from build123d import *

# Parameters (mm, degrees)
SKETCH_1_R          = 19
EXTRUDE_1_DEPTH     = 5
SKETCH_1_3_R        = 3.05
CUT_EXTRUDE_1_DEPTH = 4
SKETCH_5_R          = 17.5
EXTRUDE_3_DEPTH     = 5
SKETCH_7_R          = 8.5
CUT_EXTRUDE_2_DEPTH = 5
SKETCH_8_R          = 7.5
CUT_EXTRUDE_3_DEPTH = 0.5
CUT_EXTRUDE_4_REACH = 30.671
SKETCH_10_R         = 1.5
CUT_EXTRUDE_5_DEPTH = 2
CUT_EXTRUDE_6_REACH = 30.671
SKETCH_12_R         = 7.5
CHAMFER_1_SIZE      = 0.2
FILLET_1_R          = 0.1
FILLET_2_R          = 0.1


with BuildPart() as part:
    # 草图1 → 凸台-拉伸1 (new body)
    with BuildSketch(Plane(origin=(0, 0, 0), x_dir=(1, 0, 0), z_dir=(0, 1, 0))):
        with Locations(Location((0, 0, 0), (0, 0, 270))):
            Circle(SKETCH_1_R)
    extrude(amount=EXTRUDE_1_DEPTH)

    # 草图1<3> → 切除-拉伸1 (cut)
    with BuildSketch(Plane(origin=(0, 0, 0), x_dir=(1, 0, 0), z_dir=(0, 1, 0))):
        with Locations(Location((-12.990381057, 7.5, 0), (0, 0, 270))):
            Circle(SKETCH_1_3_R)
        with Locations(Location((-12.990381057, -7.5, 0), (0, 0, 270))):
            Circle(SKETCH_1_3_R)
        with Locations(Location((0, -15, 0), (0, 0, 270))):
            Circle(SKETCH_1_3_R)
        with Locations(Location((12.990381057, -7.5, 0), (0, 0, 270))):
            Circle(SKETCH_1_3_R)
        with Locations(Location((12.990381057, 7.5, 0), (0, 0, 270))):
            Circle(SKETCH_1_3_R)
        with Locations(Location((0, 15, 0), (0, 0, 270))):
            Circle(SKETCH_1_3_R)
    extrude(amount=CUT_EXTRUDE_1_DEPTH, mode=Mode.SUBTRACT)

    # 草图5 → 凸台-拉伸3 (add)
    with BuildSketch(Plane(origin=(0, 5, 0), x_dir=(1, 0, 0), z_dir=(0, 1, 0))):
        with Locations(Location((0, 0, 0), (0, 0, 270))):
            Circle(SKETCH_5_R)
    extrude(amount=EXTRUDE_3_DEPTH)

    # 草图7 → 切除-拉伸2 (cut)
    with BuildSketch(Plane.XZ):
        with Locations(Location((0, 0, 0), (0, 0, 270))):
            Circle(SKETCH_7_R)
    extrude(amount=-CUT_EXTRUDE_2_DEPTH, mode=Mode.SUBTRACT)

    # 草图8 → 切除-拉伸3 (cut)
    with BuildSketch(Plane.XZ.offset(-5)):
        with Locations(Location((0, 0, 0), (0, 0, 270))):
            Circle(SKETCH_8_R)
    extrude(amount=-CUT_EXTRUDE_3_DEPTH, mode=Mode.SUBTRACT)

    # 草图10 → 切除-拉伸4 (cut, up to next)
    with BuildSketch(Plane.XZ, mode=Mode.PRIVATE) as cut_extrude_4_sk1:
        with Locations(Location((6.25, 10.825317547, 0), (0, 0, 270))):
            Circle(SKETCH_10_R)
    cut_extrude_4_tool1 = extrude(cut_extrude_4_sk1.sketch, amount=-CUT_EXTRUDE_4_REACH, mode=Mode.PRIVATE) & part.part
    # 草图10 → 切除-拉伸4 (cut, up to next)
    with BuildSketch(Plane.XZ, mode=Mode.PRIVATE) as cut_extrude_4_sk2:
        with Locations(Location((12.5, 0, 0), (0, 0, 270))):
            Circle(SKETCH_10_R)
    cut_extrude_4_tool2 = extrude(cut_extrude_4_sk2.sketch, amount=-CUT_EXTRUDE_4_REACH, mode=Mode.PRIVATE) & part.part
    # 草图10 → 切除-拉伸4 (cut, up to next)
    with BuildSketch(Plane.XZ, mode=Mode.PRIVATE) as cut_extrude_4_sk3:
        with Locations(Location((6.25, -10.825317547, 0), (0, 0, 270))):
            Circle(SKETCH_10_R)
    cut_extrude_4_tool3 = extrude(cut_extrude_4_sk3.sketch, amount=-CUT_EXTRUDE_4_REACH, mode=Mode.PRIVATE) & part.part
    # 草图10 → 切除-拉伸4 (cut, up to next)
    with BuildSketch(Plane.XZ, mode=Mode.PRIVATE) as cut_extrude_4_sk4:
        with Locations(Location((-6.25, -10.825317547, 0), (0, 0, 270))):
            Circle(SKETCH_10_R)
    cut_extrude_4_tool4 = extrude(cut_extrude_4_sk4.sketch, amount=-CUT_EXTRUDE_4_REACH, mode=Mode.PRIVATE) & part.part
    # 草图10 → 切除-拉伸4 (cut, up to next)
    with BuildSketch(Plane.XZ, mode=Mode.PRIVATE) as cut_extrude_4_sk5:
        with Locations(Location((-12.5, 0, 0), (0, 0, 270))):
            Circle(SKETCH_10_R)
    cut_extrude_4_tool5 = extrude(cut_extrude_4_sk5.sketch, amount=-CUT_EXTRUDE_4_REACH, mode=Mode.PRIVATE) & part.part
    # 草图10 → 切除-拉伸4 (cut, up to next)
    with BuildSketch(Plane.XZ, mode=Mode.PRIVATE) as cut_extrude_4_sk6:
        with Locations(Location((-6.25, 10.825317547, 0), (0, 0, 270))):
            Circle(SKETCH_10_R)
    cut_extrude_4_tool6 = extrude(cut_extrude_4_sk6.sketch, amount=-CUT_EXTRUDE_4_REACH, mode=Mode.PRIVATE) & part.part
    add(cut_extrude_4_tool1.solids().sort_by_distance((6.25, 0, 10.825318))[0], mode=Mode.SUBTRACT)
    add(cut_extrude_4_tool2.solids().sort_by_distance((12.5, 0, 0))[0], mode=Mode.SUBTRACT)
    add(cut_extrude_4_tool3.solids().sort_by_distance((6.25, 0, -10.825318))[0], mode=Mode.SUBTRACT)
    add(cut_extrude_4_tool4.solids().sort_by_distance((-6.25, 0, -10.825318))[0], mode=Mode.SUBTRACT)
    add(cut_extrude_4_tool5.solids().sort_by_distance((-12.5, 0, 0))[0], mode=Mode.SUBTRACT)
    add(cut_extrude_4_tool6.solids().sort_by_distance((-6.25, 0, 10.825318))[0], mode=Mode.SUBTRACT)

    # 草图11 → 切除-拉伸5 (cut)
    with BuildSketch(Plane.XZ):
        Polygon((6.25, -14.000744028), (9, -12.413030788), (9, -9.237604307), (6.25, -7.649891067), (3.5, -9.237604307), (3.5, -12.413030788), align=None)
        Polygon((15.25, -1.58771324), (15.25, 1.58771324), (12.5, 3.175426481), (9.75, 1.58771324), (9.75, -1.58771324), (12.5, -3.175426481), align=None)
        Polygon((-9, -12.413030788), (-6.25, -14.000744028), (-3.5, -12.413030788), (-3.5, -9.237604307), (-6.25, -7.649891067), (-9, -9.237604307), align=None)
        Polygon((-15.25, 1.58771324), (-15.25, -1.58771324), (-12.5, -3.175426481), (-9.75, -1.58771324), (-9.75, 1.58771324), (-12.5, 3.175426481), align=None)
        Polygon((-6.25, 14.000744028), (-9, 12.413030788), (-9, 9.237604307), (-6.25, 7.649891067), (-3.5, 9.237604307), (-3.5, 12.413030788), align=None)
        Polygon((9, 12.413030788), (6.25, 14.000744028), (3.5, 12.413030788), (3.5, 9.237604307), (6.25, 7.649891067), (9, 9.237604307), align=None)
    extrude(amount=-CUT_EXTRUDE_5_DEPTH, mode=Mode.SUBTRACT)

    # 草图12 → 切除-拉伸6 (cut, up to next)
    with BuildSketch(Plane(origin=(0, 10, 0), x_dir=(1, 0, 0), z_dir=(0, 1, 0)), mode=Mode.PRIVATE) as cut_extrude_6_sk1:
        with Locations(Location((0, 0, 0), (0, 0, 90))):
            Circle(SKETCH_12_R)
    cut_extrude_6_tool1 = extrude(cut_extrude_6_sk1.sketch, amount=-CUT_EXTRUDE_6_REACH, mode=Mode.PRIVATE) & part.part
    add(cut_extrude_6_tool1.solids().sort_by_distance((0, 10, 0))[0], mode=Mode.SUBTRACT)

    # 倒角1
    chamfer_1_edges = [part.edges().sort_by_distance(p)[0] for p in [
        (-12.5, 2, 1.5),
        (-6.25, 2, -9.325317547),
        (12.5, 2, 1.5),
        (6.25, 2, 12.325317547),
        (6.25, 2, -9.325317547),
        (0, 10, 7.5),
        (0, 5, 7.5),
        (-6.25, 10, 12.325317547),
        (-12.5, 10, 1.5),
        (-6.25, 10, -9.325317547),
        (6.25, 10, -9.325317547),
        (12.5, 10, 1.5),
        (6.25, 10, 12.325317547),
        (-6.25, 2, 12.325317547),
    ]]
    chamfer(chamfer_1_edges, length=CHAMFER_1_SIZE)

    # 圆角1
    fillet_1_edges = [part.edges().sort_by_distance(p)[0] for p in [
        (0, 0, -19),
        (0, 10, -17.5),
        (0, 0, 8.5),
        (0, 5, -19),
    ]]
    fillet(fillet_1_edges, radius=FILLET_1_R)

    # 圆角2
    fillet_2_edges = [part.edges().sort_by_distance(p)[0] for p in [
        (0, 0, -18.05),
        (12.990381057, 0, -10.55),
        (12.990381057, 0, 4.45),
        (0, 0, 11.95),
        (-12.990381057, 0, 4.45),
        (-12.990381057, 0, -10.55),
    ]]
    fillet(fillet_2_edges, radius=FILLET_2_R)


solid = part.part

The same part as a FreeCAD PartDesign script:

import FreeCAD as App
import Part
import Sketcher
Q = App.Units.Quantity


def edges_at(feature, points):
    """Names of the edges that pass closest to the given points."""
    edges = feature.Shape.Edges
    near = lambda p: min(range(len(edges)), key=lambda i: edges[i].distToShape(Part.Vertex(*p))[0])
    return sorted({f"Edge{near(p) + 1}" for p in points})


def add_polygon(sketch, points):
    """Adds a closed chain of lines whose ends are joined by coincident constraints."""
    first, n = sketch.GeometryCount, len(points)
    for a, b in zip(points, points[1:] + points[:1]):
        sketch.addGeometry(Part.LineSegment(App.Vector(*a, 0), App.Vector(*b, 0)), False)
    for i in range(n):
        sketch.addConstraint(Sketcher.Constraint("Coincident", first + i, 2, first + (i + 1) % n, 1))

doc = App.newDocument("Part")
body = doc.addObject("PartDesign::Body", "Body")

# Sketch on XZ plane
sketch1 = body.newObject("Sketcher::SketchObject", "Sketch")
sketch1.AttachmentSupport = (doc.getObject("XZ_Plane"), [""])
sketch1.MapMode = "FlatFace"
sketch1.addGeometry(Part.Circle(App.Vector(0, 0, 0), App.Vector(0, 0, 1), 19), False)
sketch1.addConstraint([
    Sketcher.Constraint("Coincident", 0, 3, -1, 1),
    Sketcher.Constraint("Diameter", 0, 38.0),
])
pad1 = body.newObject("PartDesign::Pad", "Pad")
pad1.Profile = sketch1
pad1.Length = 5
pad1.Reversed = True

# Sketch on XZ plane
sketch2 = body.newObject("Sketcher::SketchObject", "Sketch001")
sketch2.AttachmentSupport = (doc.getObject("XZ_Plane"), [""])
sketch2.MapMode = "FlatFace"
sketch2.addGeometry([
    Part.Circle(App.Vector(-13, -7.5, 0), App.Vector(0, 0, 1), 3),  # 0
    Part.Circle(App.Vector(-13, 7.5, 0), App.Vector(0, 0, 1), 3),  # 1
    Part.Circle(App.Vector(0, 15, 0), App.Vector(0, 0, 1), 3),  # 2
    Part.Circle(App.Vector(13, 7.5, 0), App.Vector(0, 0, 1), 3),  # 3
    Part.Circle(App.Vector(13, -7.5, 0), App.Vector(0, 0, 1), 3),  # 4
    Part.Circle(App.Vector(0, -15, 0), App.Vector(0, 0, 1), 3),  # 5
], False)
sketch2.addConstraint([
    Sketcher.Constraint("Equal", 0, 1),
    Sketcher.Constraint("Equal", 1, 2),
    Sketcher.Constraint("Equal", 2, 3),
    Sketcher.Constraint("Equal", 3, 4),
    Sketcher.Constraint("Equal", 4, 5),
    Sketcher.Constraint("Symmetric", 0, 3, 3, 3, -1, 1),
    Sketcher.Constraint("Symmetric", 1, 3, 4, 3, -1, 1),
    Sketcher.Constraint("Symmetric", 2, 3, 5, 3, -1, 1),
    Sketcher.Constraint("Symmetric", 1, 3, 3, 3, -2),
    Sketcher.Constraint("PointOnObject", 2, 3, -2),
    Sketcher.Constraint("Diameter", 0, 6.1),
    Sketcher.Constraint("DistanceY", -1, 1, 2, 3, 15.0),
    Sketcher.Constraint("DistanceY", 0, 3, 1, 3, 15.0),
    Sketcher.Constraint("DistanceX", 0, 3, -1, 1, 12.990381),
])
pocket1 = body.newObject("PartDesign::Pocket", "Pocket")
pocket1.Profile = sketch2
pocket1.Length = 4

# Sketch on XZ plane
sketch3 = body.newObject("Sketcher::SketchObject", "Sketch002")
sketch3.AttachmentSupport = (doc.getObject("XZ_Plane"), [""])
sketch3.MapMode = "FlatFace"
sketch3.AttachmentOffset = App.Placement(App.Vector(0, 0, -5), App.Rotation())
sketch3.addGeometry(Part.Circle(App.Vector(0, 0, 0), App.Vector(0, 0, 1), 18), False)
sketch3.addConstraint([
    Sketcher.Constraint("Coincident", 0, 3, -1, 1),
    Sketcher.Constraint("Diameter", 0, 35.0),
])
pad2 = body.newObject("PartDesign::Pad", "Pad001")
pad2.Profile = sketch3
pad2.Length = 5
pad2.Reversed = True

# Sketch on XZ plane
sketch4 = body.newObject("Sketcher::SketchObject", "Sketch003")
sketch4.AttachmentSupport = (doc.getObject("XZ_Plane"), [""])
sketch4.MapMode = "FlatFace"
sketch4.addGeometry(Part.Circle(App.Vector(0, 0, 0), App.Vector(0, 0, 1), 8), False)
sketch4.addConstraint([
    Sketcher.Constraint("Coincident", 0, 3, -1, 1),
    Sketcher.Constraint("Diameter", 0, 17.0),
])
pocket2 = body.newObject("PartDesign::Pocket", "Pocket001")
pocket2.Profile = sketch4
pocket2.Length = 5

# Sketch on XZ plane
sketch5 = body.newObject("Sketcher::SketchObject", "Sketch004")
sketch5.AttachmentSupport = (doc.getObject("XZ_Plane"), [""])
sketch5.MapMode = "FlatFace"
sketch5.AttachmentOffset = App.Placement(App.Vector(0, 0, -5), App.Rotation())
sketch5.addGeometry(Part.Circle(App.Vector(0, 0, 0), App.Vector(0, 0, 1), 8), False)
sketch5.addConstraint([
    Sketcher.Constraint("Coincident", 0, 3, -1, 1),
    Sketcher.Constraint("Diameter", 0, 15.0),
])
pocket3 = body.newObject("PartDesign::Pocket", "Pocket002")
pocket3.Profile = sketch5
pocket3.Length = 0.5

# Sketch on XZ plane
sketch6 = body.newObject("Sketcher::SketchObject", "Sketch005")
sketch6.AttachmentSupport = (doc.getObject("XZ_Plane"), [""])
sketch6.MapMode = "FlatFace"
sketch6.addGeometry(Part.Circle(App.Vector(6.2, 10.8, 0), App.Vector(0, 0, 1), 1.5), False)
sketch6.addConstraint([
    Sketcher.Constraint("Diameter", 0, 3.0),
    Sketcher.Constraint("DistanceX", -1, 1, 0, 3, 6.25),
    Sketcher.Constraint("DistanceY", -1, 1, 0, 3, 10.825318),
])
pocket4 = body.newObject("PartDesign::Pocket", "Pocket003")
pocket4.Profile = sketch6
pocket4.Type = "UpToFirst"

# Sketch on XZ plane
sketch7 = body.newObject("Sketcher::SketchObject", "Sketch006")
sketch7.AttachmentSupport = (doc.getObject("XZ_Plane"), [""])
sketch7.MapMode = "FlatFace"
sketch7.addGeometry(Part.Circle(App.Vector(12.5, 0, 0), App.Vector(0, 0, 1), 1.5), False)
sketch7.addConstraint([
    Sketcher.Constraint("PointOnObject", 0, 3, -1),
    Sketcher.Constraint("Diameter", 0, 3.0),
    Sketcher.Constraint("DistanceX", -1, 1, 0, 3, 12.5),
])
pocket5 = body.newObject("PartDesign::Pocket", "Pocket004")
pocket5.Profile = sketch7
pocket5.Type = "UpToFirst"

# Sketch on XZ plane
sketch8 = body.newObject("Sketcher::SketchObject", "Sketch007")
sketch8.AttachmentSupport = (doc.getObject("XZ_Plane"), [""])
sketch8.MapMode = "FlatFace"
sketch8.addGeometry(Part.Circle(App.Vector(6.2, -10.8, 0), App.Vector(0, 0, 1), 1.5), False)
sketch8.addConstraint([
    Sketcher.Constraint("Diameter", 0, 3.0),
    Sketcher.Constraint("DistanceX", -1, 1, 0, 3, 6.25),
    Sketcher.Constraint("DistanceY", 0, 3, -1, 1, 10.825318),
])
pocket6 = body.newObject("PartDesign::Pocket", "Pocket005")
pocket6.Profile = sketch8
pocket6.Type = "UpToFirst"

# Sketch on XZ plane
sketch9 = body.newObject("Sketcher::SketchObject", "Sketch008")
sketch9.AttachmentSupport = (doc.getObject("XZ_Plane"), [""])
sketch9.MapMode = "FlatFace"
sketch9.addGeometry(Part.Circle(App.Vector(-6.2, -10.8, 0), App.Vector(0, 0, 1), 1.5), False)
sketch9.addConstraint([
    Sketcher.Constraint("Diameter", 0, 3.0),
    Sketcher.Constraint("DistanceX", 0, 3, -1, 1, 6.25),
    Sketcher.Constraint("DistanceY", 0, 3, -1, 1, 10.825318),
])
pocket7 = body.newObject("PartDesign::Pocket", "Pocket006")
pocket7.Profile = sketch9
pocket7.Type = "UpToFirst"

# Sketch on XZ plane
sketch10 = body.newObject("Sketcher::SketchObject", "Sketch009")
sketch10.AttachmentSupport = (doc.getObject("XZ_Plane"), [""])
sketch10.MapMode = "FlatFace"
sketch10.addGeometry(Part.Circle(App.Vector(-12.5, 0, 0), App.Vector(0, 0, 1), 1.5), False)
sketch10.addConstraint([
    Sketcher.Constraint("PointOnObject", 0, 3, -1),
    Sketcher.Constraint("Diameter", 0, 3.0),
    Sketcher.Constraint("DistanceX", 0, 3, -1, 1, 12.5),
])
pocket8 = body.newObject("PartDesign::Pocket", "Pocket007")
pocket8.Profile = sketch10
pocket8.Type = "UpToFirst"

# Sketch on XZ plane
sketch11 = body.newObject("Sketcher::SketchObject", "Sketch010")
sketch11.AttachmentSupport = (doc.getObject("XZ_Plane"), [""])
sketch11.MapMode = "FlatFace"
sketch11.addGeometry(Part.Circle(App.Vector(-6.2, 10.8, 0), App.Vector(0, 0, 1), 1.5), False)
sketch11.addConstraint([
    Sketcher.Constraint("Diameter", 0, 3.0),
    Sketcher.Constraint("DistanceX", 0, 3, -1, 1, 6.25),
    Sketcher.Constraint("DistanceY", -1, 1, 0, 3, 10.825318),
])
pocket9 = body.newObject("PartDesign::Pocket", "Pocket008")
pocket9.Profile = sketch11
pocket9.Type = "UpToFirst"

# Sketch on XZ plane
sketch12 = body.newObject("Sketcher::SketchObject", "Sketch011")
sketch12.AttachmentSupport = (doc.getObject("XZ_Plane"), [""])
sketch12.MapMode = "FlatFace"
add_polygon(sketch12, [(6.2, -14), (9, -12.4), (9, -9.2), (6.2, -7.6), (3.5, -9.2), (3.5, -12.4)])  # lines 0-5
add_polygon(sketch12, [(15.2, -1.6), (15.2, 1.6), (12.5, 3.2), (9.8, 1.6), (9.8, -1.6), (12.5, -3.2)])  # lines 6-11
add_polygon(sketch12, [(-9, -12.4), (-6.2, -14), (-3.5, -12.4), (-3.5, -9.2), (-6.2, -7.6), (-9, -9.2)])  # lines 12-17
add_polygon(sketch12, [(-15.2, 1.6), (-15.2, -1.6), (-12.5, -3.2), (-9.8, -1.6), (-9.8, 1.6), (-12.5, 3.2)])  # lines 18-23
add_polygon(sketch12, [(-6.2, 14), (-9, 12.4), (-9, 9.2), (-6.2, 7.6), (-3.5, 9.2), (-3.5, 12.4)])  # lines 24-29
add_polygon(sketch12, [(9, 12.4), (6.2, 14), (3.5, 12.4), (3.5, 9.2), (6.2, 7.6), (9, 9.2)])  # lines 30-35
sketch12.addConstraint([
    Sketcher.Constraint("Vertical", 1),
    Sketcher.Constraint("Vertical", 4),
    Sketcher.Constraint("Vertical", 6),
    Sketcher.Constraint("Vertical", 9),
    Sketcher.Constraint("Vertical", 14),
    Sketcher.Constraint("Vertical", 17),
    Sketcher.Constraint("Vertical", 18),
    Sketcher.Constraint("Vertical", 21),
    Sketcher.Constraint("Vertical", 25),
    Sketcher.Constraint("Vertical", 28),
    Sketcher.Constraint("Vertical", 32),
    Sketcher.Constraint("Vertical", 35),
    Sketcher.Constraint("Symmetric", 6, 2, 18, 2, -1, 1),
    Sketcher.Constraint("Symmetric", 7, 2, 19, 2, -1, 1),
    Sketcher.Constraint("Symmetric", 8, 2, 20, 2, -1, 1),
    Sketcher.Constraint("Symmetric", 10, 2, 22, 2, -1, 1),
    Sketcher.Constraint("Symmetric", 0, 2, 24, 2, -1, 1),
    Sketcher.Constraint("Symmetric", 2, 2, 26, 2, -1, 1),
    Sketcher.Constraint("Symmetric", 3, 2, 27, 2, -1, 1),
    Sketcher.Constraint("Symmetric", 5, 2, 29, 2, -1, 1),
    Sketcher.Constraint("Symmetric", 12, 2, 30, 2, -1, 1),
    Sketcher.Constraint("Symmetric", 13, 2, 31, 2, -1, 1),
    Sketcher.Constraint("Symmetric", 15, 2, 33, 2, -1, 1),
    Sketcher.Constraint("Symmetric", 16, 2, 34, 2, -1, 1),
    Sketcher.Constraint("Symmetric", 5, 2, 12, 2, -2),
    Sketcher.Constraint("Symmetric", 4, 2, 13, 2, -2),
    Sketcher.Constraint("Symmetric", 2, 2, 15, 2, -2),
    Sketcher.Constraint("Symmetric", 1, 2, 16, 2, -2),
    Sketcher.Constraint("Symmetric", 10, 2, 19, 2, -2),
    Sketcher.Constraint("Parallel", 0, 3),
    Sketcher.Constraint("Parallel", 2, 5),
    Sketcher.Constraint("Parallel", 5, 7),
    Sketcher.Constraint("Parallel", 3, 8),
    Sketcher.Constraint("Parallel", 7, 10),
    Sketcher.Constraint("Parallel", 8, 11),
    Sketcher.Constraint("Parallel", 10, 12),
    Sketcher.Constraint("Parallel", 11, 13),
    Sketcher.Constraint("Parallel", 12, 15),
    Sketcher.Constraint("Parallel", 19, 22),
    Sketcher.Constraint("Parallel", 20, 23),
    Sketcher.Constraint("Parallel", 22, 26),
    Sketcher.Constraint("Parallel", 26, 29),
    Sketcher.Constraint("Parallel", 29, 30),
    Sketcher.Constraint("Parallel", 30, 33),
    Sketcher.Constraint("Horizontal", 1, 2, 3, 2),
    Sketcher.Constraint("Horizontal", 0, 2, 4, 2),
    Sketcher.Constraint("Horizontal", 6, 2, 8, 2),
    Sketcher.Constraint("Equal", 4, 6),
    Sketcher.Constraint("Equal", 5, 7),
    Sketcher.Constraint("Angle", 0, Q("30 deg")),
    Sketcher.Constraint("DistanceX", -1, 1, 0, 2, 9.0),
    Sketcher.Constraint("DistanceX", 2, 2, 6, 2, 9.0),
    Sketcher.Constraint("DistanceX", 13, 2, 4, 2, 7.0),
    Sketcher.Constraint("DistanceY", 1, 1, 1, 2, 3.175426),
    Sketcher.Constraint("DistanceY", 0, 2, -1, 1, 12.413031),
])
pocket10 = body.newObject("PartDesign::Pocket", "Pocket009")
pocket10.Profile = sketch12
pocket10.Length = 2

# Sketch on XZ plane
sketch13 = body.newObject("Sketcher::SketchObject", "Sketch012")
sketch13.AttachmentSupport = (doc.getObject("XZ_Plane"), [""])
sketch13.MapMode = "FlatFace"
sketch13.AttachmentOffset = App.Placement(App.Vector(0, 0, -10), App.Rotation())
sketch13.addGeometry(Part.Circle(App.Vector(0, 0, 0), App.Vector(0, 0, 1), 8), False)
sketch13.addConstraint([
    Sketcher.Constraint("Coincident", 0, 3, -1, 1),
    Sketcher.Constraint("Diameter", 0, 15.0),
])
pocket11 = body.newObject("PartDesign::Pocket", "Pocket010")
pocket11.Profile = sketch13
pocket11.Type = "UpToFirst"
pocket11.Reversed = True
doc.recompute()

chamfer = body.newObject("PartDesign::Chamfer", "Chamfer")
chamfer.Base = (pocket11, edges_at(pocket11, [
    (-12.5, 2, 1.5),
    (-6.25, 2, -9.325),
    (12.5, 2, 1.5),
    (6.25, 2, 12.325),
    (6.25, 2, -9.325),
    (0, 10, 7.5),
    (0, 5, 7.5),
    (-6.25, 10, 12.325),
    (-12.5, 10, 1.5),
    (-6.25, 10, -9.325),
    (6.25, 10, -9.325),
    (12.5, 10, 1.5),
    (6.25, 10, 12.325),
    (-6.25, 2, 12.325),
]))
chamfer.Size = 0.2
doc.recompute()

fillet = body.newObject("PartDesign::Fillet", "Fillet")
fillet.Base = (chamfer, edges_at(chamfer, [
    (0, 0, -19),
    (0, 10, -17.5),
    (0, 0, 8.5),
    (0, 5, -19),
]))
fillet.Radius = 0.1
doc.recompute()

fillet2 = body.newObject("PartDesign::Fillet", "Fillet001")
fillet2.Base = (fillet, edges_at(fillet, [
    (0, 0, -18.05),
    (12.99, 0, -10.55),
    (12.99, 0, 4.45),
    (0, 0, 11.95),
    (-12.99, 0, 4.45),
    (-12.99, 0, -10.55),
]))
fillet2.Radius = 0.1

doc.recompute()
